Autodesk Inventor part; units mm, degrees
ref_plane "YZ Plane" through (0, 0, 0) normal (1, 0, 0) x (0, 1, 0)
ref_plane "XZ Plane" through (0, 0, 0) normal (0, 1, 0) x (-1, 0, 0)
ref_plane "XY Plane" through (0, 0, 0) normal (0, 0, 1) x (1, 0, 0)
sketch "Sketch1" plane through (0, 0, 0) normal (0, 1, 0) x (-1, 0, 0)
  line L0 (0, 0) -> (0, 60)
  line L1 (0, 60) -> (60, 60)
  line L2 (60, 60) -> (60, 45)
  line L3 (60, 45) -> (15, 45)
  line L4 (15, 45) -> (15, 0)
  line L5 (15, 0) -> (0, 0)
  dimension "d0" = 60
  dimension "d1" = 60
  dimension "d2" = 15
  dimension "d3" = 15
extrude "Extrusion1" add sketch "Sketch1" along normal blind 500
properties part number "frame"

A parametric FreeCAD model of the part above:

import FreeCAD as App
import Part
import Sketcher
from FreeCAD import Vector
Q = App.Units.Quantity


def add_polygon(sketch, points):
    """Adds a closed chain of lines whose ends are joined by coincident constraints."""
    first, n = sketch.GeometryCount, len(points)
    for a, b in zip(points, points[1:] + points[:1]):
        sketch.addGeometry(Part.LineSegment(App.Vector(*a, 0), App.Vector(*b, 0)), False)
    for i in range(n):
        sketch.addConstraint(Sketcher.Constraint("Coincident", first + i, 2, first + (i + 1) % n, 1))

doc = App.newDocument("Part")
body = doc.addObject("PartDesign::Body", "Body")

sketch1 = body.newObject("Sketcher::SketchObject", "Sketch")
sketch1.AttachmentSupport = (doc.getObject("XZ_Plane"), [""])
sketch1.MapMode = "FlatFace"
add_polygon(sketch1, [(0, 60), (0, 0), (-15, 0), (-15, 45), (-60, 45), (-60, 60)])
sketch1.addConstraint([
    Sketcher.Constraint("Vertical", 0),
    Sketcher.Constraint("Horizontal", 1),
    Sketcher.Constraint("Vertical", 2),
    Sketcher.Constraint("Horizontal", 3),
    Sketcher.Constraint("Vertical", 4),
    Sketcher.Constraint("Horizontal", 5),
    Sketcher.Constraint("Coincident", 0, 2, -1, 1),
    Sketcher.Constraint("Equal", 5, 0),
    Sketcher.Constraint("Equal", 3, 2),
    Sketcher.Constraint("DistanceX", 1, 2, 1, 1, Q("15 mm")),
    Sketcher.Constraint("DistanceX", 5, 1, 5, 2, Q("60 mm")),
])
pad1 = body.newObject("PartDesign::Pad", "Pad")
pad1.Profile = sketch1
pad1.Length = 500
pad1.Reversed = True

doc.recompute()
